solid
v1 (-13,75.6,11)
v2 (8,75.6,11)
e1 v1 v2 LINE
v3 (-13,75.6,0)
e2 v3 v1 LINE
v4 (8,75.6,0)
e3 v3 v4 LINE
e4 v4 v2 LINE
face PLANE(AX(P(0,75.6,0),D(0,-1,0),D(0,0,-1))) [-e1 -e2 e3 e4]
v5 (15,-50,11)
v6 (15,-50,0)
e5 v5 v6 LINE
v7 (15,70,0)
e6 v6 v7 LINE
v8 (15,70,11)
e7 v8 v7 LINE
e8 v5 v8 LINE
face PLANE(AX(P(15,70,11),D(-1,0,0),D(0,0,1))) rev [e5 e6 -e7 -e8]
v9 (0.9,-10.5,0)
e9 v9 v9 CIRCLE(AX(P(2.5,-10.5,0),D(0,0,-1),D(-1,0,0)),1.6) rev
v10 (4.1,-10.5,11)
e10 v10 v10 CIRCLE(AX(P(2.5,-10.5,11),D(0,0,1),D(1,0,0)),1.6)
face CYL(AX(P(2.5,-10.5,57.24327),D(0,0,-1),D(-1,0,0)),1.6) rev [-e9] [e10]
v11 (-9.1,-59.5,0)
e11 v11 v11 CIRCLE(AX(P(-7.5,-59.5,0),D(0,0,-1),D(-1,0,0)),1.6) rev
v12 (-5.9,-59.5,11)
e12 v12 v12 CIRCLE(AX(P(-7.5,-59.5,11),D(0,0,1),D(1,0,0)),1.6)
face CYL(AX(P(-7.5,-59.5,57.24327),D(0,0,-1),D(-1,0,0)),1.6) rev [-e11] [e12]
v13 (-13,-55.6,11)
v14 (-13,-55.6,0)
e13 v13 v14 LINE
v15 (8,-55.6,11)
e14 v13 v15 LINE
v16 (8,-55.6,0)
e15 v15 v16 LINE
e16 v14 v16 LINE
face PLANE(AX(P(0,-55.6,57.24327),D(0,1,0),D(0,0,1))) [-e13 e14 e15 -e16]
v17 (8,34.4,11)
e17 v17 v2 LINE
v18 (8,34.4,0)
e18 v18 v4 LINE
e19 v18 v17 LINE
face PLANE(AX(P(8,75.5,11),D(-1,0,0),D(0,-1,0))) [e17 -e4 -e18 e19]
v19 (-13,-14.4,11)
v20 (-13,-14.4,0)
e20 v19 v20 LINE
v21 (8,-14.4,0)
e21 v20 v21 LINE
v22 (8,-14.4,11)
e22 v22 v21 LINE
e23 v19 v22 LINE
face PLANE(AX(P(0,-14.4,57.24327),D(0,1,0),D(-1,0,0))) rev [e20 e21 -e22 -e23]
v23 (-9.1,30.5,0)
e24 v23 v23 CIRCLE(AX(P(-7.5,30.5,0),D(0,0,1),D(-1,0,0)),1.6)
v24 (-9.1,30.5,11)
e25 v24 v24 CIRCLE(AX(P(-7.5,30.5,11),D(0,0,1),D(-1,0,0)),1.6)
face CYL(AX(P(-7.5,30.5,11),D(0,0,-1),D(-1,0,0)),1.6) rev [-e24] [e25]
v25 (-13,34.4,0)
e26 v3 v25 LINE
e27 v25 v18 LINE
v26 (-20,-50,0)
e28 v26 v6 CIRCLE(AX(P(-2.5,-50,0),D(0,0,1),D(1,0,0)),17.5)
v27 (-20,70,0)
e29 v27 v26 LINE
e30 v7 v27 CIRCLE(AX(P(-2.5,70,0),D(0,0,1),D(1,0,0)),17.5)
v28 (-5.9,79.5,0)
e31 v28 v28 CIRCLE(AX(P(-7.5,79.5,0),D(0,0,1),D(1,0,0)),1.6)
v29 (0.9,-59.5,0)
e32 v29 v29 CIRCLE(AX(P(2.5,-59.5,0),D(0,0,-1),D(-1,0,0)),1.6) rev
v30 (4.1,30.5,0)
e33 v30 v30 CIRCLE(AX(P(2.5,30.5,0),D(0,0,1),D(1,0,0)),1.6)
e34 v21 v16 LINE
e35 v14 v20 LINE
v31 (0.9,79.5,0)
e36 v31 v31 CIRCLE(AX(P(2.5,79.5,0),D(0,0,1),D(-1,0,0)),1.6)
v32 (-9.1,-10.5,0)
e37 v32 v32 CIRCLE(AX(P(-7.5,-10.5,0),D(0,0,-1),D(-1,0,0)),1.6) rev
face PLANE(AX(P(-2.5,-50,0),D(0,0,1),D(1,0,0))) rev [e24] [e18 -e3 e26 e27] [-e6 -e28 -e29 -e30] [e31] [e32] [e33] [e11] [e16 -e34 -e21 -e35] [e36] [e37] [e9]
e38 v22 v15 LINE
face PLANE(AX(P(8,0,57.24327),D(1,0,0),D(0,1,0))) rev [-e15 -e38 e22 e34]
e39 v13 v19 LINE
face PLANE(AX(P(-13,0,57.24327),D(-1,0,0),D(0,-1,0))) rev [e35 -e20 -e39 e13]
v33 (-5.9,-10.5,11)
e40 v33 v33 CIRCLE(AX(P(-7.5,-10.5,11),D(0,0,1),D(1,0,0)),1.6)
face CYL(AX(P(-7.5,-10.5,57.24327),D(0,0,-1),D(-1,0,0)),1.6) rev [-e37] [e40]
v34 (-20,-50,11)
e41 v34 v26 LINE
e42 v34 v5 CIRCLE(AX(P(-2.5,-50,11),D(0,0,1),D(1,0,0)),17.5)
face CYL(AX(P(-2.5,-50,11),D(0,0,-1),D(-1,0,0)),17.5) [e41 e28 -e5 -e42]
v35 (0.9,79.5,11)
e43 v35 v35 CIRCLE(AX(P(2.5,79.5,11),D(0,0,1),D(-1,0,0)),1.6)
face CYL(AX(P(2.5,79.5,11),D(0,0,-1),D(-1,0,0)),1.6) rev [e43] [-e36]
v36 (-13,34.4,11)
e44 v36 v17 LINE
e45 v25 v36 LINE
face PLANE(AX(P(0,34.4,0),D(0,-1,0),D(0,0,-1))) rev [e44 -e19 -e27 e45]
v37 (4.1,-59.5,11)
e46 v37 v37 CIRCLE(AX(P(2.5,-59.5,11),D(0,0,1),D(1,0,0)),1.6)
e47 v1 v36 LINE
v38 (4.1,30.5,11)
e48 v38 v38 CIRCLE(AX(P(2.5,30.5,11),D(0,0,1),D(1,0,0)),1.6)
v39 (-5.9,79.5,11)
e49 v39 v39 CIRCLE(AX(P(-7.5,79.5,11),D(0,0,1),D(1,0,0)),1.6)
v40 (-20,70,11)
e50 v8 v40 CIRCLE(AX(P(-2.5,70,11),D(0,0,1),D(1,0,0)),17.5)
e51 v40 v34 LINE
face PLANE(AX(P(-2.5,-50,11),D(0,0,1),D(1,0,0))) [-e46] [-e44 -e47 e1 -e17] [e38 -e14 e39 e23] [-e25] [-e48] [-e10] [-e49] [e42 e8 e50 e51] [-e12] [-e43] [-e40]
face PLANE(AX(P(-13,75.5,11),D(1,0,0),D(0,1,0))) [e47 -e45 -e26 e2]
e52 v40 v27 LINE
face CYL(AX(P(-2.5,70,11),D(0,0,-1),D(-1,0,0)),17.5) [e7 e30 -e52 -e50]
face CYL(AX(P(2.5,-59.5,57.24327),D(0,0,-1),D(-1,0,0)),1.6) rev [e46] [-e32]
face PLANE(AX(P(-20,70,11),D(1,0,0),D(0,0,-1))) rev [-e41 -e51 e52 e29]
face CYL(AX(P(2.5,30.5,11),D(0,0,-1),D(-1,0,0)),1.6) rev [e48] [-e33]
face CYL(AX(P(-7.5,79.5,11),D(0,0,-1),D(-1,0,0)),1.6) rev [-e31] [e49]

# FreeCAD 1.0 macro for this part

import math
import FreeCAD as App
import Part
import Sketcher
Q = App.Units.Quantity

doc = App.newDocument("Part")
body = doc.addObject("PartDesign::Body", "Body")

# Sketch on XY plane
sketch1 = body.newObject("Sketcher::SketchObject", "Sketch")
sketch1.AttachmentSupport = (doc.getObject("XY_Plane"), [""])
sketch1.MapMode = "FlatFace"
sketch1.addGeometry(Part.LineSegment(App.Vector(-20, 70, 0), App.Vector(-20, -50, 0)), False)
sketch1.addGeometry(Part.ArcOfCircle(Part.Circle(App.Vector(-2.5, -50, 0), App.Vector(0, 0, 1), 17.5), math.radians(180), math.radians(360)), False)
sketch1.addGeometry(Part.LineSegment(App.Vector(15, -50, 0), App.Vector(15, 70, 0)), False)
sketch1.addGeometry(Part.ArcOfCircle(Part.Circle(App.Vector(-2.5, 70, 0), App.Vector(0, 0, 1), 17.5), math.radians(0), math.radians(180)), False)
sketch1.addGeometry(Part.Circle(App.Vector(-7.5, 30.5, 0), App.Vector(0, 0, 1), 1.6), False)
sketch1.addGeometry(Part.Circle(App.Vector(2.5, 30.5, 0), App.Vector(0, 0, 1), 1.6), False)
sketch1.addGeometry(Part.Circle(App.Vector(-7.5, 79.5, 0), App.Vector(0, 0, 1), 1.6), False)
sketch1.addGeometry(Part.LineSegment(App.Vector(8, 34.5, 0), App.Vector(-13, 34.5, 0)), False)
sketch1.addGeometry(Part.LineSegment(App.Vector(-13, 34.5, 0), App.Vector(-13, 75.5, 0)), False)
sketch1.addGeometry(Part.LineSegment(App.Vector(-13, 75.5, 0), App.Vector(8, 75.5, 0)), False)
sketch1.addGeometry(Part.LineSegment(App.Vector(8, 75.5, 0), App.Vector(8, 34.5, 0)), False)
sketch1.addGeometry(Part.Circle(App.Vector(2.5, 79.5, 0), App.Vector(0, 0, 1), 1.6), False)
sketch1.addConstraint(Sketcher.Constraint("Tangent", 0, 2, 1, 1))
sketch1.addConstraint(Sketcher.Constraint("Tangent", 1, 2, 2, 1))
sketch1.addConstraint(Sketcher.Constraint("Tangent", 2, 2, 3, 1))
sketch1.addConstraint(Sketcher.Constraint("Tangent", 3, 2, 0, 1))
sketch1.addConstraint(Sketcher.Constraint("Coincident", 7, 2, 8, 1))
sketch1.addConstraint(Sketcher.Constraint("Coincident", 8, 2, 9, 1))
sketch1.addConstraint(Sketcher.Constraint("Coincident", 9, 2, 10, 1))
sketch1.addConstraint(Sketcher.Constraint("Coincident", 10, 2, 7, 1))
sketch1.addConstraint(Sketcher.Constraint("Vertical", 0))
sketch1.addConstraint(Sketcher.Constraint("Vertical", 2))
sketch1.addConstraint(Sketcher.Constraint("Horizontal", 7))
sketch1.addConstraint(Sketcher.Constraint("Vertical", 8))
sketch1.addConstraint(Sketcher.Constraint("Horizontal", 9))
sketch1.addConstraint(Sketcher.Constraint("Vertical", 10))
sketch1.addConstraint(Sketcher.Constraint("Equal", 4, 5))
sketch1.addConstraint(Sketcher.Constraint("Equal", 5, 6))
sketch1.addConstraint(Sketcher.Constraint("Equal", 6, 11))
sketch1.addConstraint(Sketcher.Constraint("Horizontal", 4, 3, 5, 3))
sketch1.addConstraint(Sketcher.Constraint("Horizontal", 6, 3, 11, 3))
sketch1.addConstraint(Sketcher.Constraint("Vertical", 4, 3, 6, 3))
sketch1.addConstraint(Sketcher.Constraint("Vertical", 5, 3, 11, 3))
sketch1.addConstraint(Sketcher.Constraint("Diameter", 4, Q("3.2 mm")))
sketch1.addConstraint(Sketcher.Constraint("Radius", 1, Q("17.5 mm")))
sketch1.addConstraint(Sketcher.Constraint("DistanceX", 7, 2, 7, 1, Q("21 mm")))
sketch1.addConstraint(Sketcher.Constraint("DistanceY", 0, 2, 0, 1, Q("120 mm")))
sketch1.addConstraint(Sketcher.Constraint("DistanceY", 8, 1, 8, 2, Q("41 mm")))
sketch1.addConstraint(Sketcher.Constraint("DistanceY", 1, 3, -1, 1, Q("50 mm")))
sketch1.addConstraint(Sketcher.Constraint("DistanceX", 0, 2, -1, 1, Q("20 mm")))
sketch1.addConstraint(Sketcher.Constraint("DistanceX", 7, 2, -1, 1, Q("13 mm")))
sketch1.addConstraint(Sketcher.Constraint("DistanceX", 4, 3, 3, 3, Q("5 mm")))
sketch1.addConstraint(Sketcher.Constraint("DistanceX", 4, 3, 5, 3, Q("10 mm")))
sketch1.addConstraint(Sketcher.Constraint("DistanceY", 4, 3, 6, 3, Q("49 mm")))
sketch1.addConstraint(Sketcher.Constraint("DistanceY", 4, 3, 7, 2, Q("4 mm")))
sketch1.addConstraint(Sketcher.Constraint("DistanceY", -1, 1, 4, 3, Q("30.5 mm")))
pad1 = body.newObject("PartDesign::Pad", "Pad")
pad1.Profile = sketch1
pad1.Length = 11

# Sketch on XY plane
sketch2 = body.newObject("Sketcher::SketchObject", "Sketch001")
sketch2.AttachmentSupport = (doc.getObject("XY_Plane"), [""])
sketch2.MapMode = "FlatFace"
sketch2.AttachmentOffset = App.Placement(App.Vector(0, 0, 11), App.Rotation())
sketch2.addGeometry(Part.LineSegment(App.Vector(-13, 75.6, 0), App.Vector(-13, 75.5, 0)), False)
sketch2.addGeometry(Part.LineSegment(App.Vector(-13, 75.5, 0), App.Vector(8, 75.5, 0)), False)
sketch2.addGeometry(Part.LineSegment(App.Vector(8, 75.5, 0), App.Vector(8, 75.6, 0)), False)
sketch2.addGeometry(Part.LineSegment(App.Vector(8, 75.6, 0), App.Vector(-13, 75.6, 0)), False)
sketch2.addGeometry(Part.LineSegment(App.Vector(-13, 34.5, 0), App.Vector(-13, 34.4, 0)), False)
sketch2.addGeometry(Part.LineSegment(App.Vector(-13, 34.4, 0), App.Vector(8, 34.4, 0)), False)
sketch2.addGeometry(Part.LineSegment(App.Vector(8, 34.4, 0), App.Vector(8, 34.5, 0)), False)
sketch2.addGeometry(Part.LineSegment(App.Vector(8, 34.5, 0), App.Vector(-13, 34.5, 0)), False)
sketch2.addConstraint(Sketcher.Constraint("Coincident", 0, 2, 1, 1))
sketch2.addConstraint(Sketcher.Constraint("Coincident", 1, 2, 2, 1))
sketch2.addConstraint(Sketcher.Constraint("Coincident", 2, 2, 3, 1))
sketch2.addConstraint(Sketcher.Constraint("Coincident", 3, 2, 0, 1))
sketch2.addConstraint(Sketcher.Constraint("Coincident", 4, 2, 5, 1))
sketch2.addConstraint(Sketcher.Constraint("Coincident", 5, 2, 6, 1))
sketch2.addConstraint(Sketcher.Constraint("Coincident", 6, 2, 7, 1))
sketch2.addConstraint(Sketcher.Constraint("Coincident", 7, 2, 4, 1))
sketch2.addConstraint(Sketcher.Constraint("Vertical", 0))
sketch2.addConstraint(Sketcher.Constraint("Horizontal", 1))
sketch2.addConstraint(Sketcher.Constraint("Vertical", 2))
sketch2.addConstraint(Sketcher.Constraint("Horizontal", 3))
sketch2.addConstraint(Sketcher.Constraint("Vertical", 4))
sketch2.addConstraint(Sketcher.Constraint("Horizontal", 5))
sketch2.addConstraint(Sketcher.Constraint("Vertical", 6))
sketch2.addConstraint(Sketcher.Constraint("Horizontal", 7))
sketch2.addConstraint(Sketcher.Constraint("Vertical", 3, 2, 4, 2))
sketch2.addConstraint(Sketcher.Constraint("Vertical", 2, 2, 5, 2))
sketch2.addConstraint(Sketcher.Constraint("Equal", 2, 4))
sketch2.addConstraint(Sketcher.Constraint("DistanceX", 1, 1, 1, 2, Q("21 mm")))
sketch2.addConstraint(Sketcher.Constraint("DistanceY", 0, 2, 0, 1, Q("0.1 mm")))
sketch2.addConstraint(Sketcher.Constraint("DistanceX", 0, 2, -1, 1, Q("13 mm")))
sketch2.addConstraint(Sketcher.Constraint("DistanceY", 6, 2, 1, 2, Q("41 mm")))
sketch2.addConstraint(Sketcher.Constraint("DistanceY", -1, 1, 0, 2, Q("75.5 mm")))
pocket1 = body.newObject("PartDesign::Pocket", "Pocket")
pocket1.Profile = sketch2
pocket1.Type = "ThroughAll"

# Sketch on XY plane
sketch3 = body.newObject("Sketcher::SketchObject", "Sketch002")
sketch3.AttachmentSupport = (doc.getObject("XY_Plane"), [""])
sketch3.MapMode = "FlatFace"
sketch3.addGeometry(Part.LineSegment(App.Vector(8, -14.4, 0), App.Vector(8, -55.6, 0)), False)
sketch3.addGeometry(Part.LineSegment(App.Vector(8, -55.6, 0), App.Vector(-13, -55.6, 0)), False)
sketch3.addGeometry(Part.LineSegment(App.Vector(-13, -55.6, 0), App.Vector(-13, -14.4, 0)), False)
sketch3.addGeometry(Part.LineSegment(App.Vector(-13, -14.4, 0), App.Vector(8, -14.4, 0)), False)
sketch3.addGeometry(Part.Circle(App.Vector(2.5, -10.5, 0), App.Vector(0, 0, 1), 1.6), False)
sketch3.addGeometry(Part.Circle(App.Vector(-7.5, -10.5, 0), App.Vector(0, 0, 1), 1.6), False)
sketch3.addGeometry(Part.Circle(App.Vector(2.5, -59.5, 0), App.Vector(0, 0, 1), 1.6), False)
sketch3.addGeometry(Part.Circle(App.Vector(-7.5, -59.5, 0), App.Vector(0, 0, 1), 1.6), False)
sketch3.addConstraint(Sketcher.Constraint("Coincident", 0, 2, 1, 1))
sketch3.addConstraint(Sketcher.Constraint("Coincident", 1, 2, 2, 1))
sketch3.addConstraint(Sketcher.Constraint("Coincident", 2, 2, 3, 1))
sketch3.addConstraint(Sketcher.Constraint("Coincident", 3, 2, 0, 1))
sketch3.addConstraint(Sketcher.Constraint("Vertical", 0))
sketch3.addConstraint(Sketcher.Constraint("Horizontal", 1))
sketch3.addConstraint(Sketcher.Constraint("Vertical", 2))
sketch3.addConstraint(Sketcher.Constraint("Horizontal", 3))
sketch3.addConstraint(Sketcher.Constraint("Equal", 4, 5))
sketch3.addConstraint(Sketcher.Constraint("Equal", 5, 6))
sketch3.addConstraint(Sketcher.Constraint("Equal", 6, 7))
sketch3.addConstraint(Sketcher.Constraint("Horizontal", 4, 3, 5, 3))
sketch3.addConstraint(Sketcher.Constraint("Horizontal", 6, 3, 7, 3))
sketch3.addConstraint(Sketcher.Constraint("Vertical", 4, 3, 6, 3))
sketch3.addConstraint(Sketcher.Constraint("Vertical", 5, 3, 7, 3))
sketch3.addConstraint(Sketcher.Constraint("Diameter", 4, Q("3.2 mm")))
sketch3.addConstraint(Sketcher.Constraint("DistanceX", 1, 2, 1, 1, Q("21 mm")))
sketch3.addConstraint(Sketcher.Constraint("DistanceY", 0, 2, 0, 1, Q("41.2 mm")))
sketch3.addConstraint(Sketcher.Constraint("DistanceX", -1, 1, 0, 2, Q("8 mm")))
sketch3.addConstraint(Sketcher.Constraint("DistanceX", 5, 3, 4, 3, Q("10 mm")))
sketch3.addConstraint(Sketcher.Constraint("DistanceY", 6, 3, 4, 3, Q("49 mm")))
sketch3.addConstraint(Sketcher.Constraint("DistanceX", -1, 1, 4, 3, Q("2.5 mm")))
sketch3.addConstraint(Sketcher.Constraint("DistanceY", 4, 3, -1, 1, Q("10.5 mm")))
sketch3.addConstraint(Sketcher.Constraint("DistanceY", 0, 2, -1, 1, Q("55.6 mm")))
pocket2 = body.newObject("PartDesign::Pocket", "Pocket001")
pocket2.Profile = sketch3
pocket2.Length = 11
pocket2.Reversed = True

doc.recompute()
